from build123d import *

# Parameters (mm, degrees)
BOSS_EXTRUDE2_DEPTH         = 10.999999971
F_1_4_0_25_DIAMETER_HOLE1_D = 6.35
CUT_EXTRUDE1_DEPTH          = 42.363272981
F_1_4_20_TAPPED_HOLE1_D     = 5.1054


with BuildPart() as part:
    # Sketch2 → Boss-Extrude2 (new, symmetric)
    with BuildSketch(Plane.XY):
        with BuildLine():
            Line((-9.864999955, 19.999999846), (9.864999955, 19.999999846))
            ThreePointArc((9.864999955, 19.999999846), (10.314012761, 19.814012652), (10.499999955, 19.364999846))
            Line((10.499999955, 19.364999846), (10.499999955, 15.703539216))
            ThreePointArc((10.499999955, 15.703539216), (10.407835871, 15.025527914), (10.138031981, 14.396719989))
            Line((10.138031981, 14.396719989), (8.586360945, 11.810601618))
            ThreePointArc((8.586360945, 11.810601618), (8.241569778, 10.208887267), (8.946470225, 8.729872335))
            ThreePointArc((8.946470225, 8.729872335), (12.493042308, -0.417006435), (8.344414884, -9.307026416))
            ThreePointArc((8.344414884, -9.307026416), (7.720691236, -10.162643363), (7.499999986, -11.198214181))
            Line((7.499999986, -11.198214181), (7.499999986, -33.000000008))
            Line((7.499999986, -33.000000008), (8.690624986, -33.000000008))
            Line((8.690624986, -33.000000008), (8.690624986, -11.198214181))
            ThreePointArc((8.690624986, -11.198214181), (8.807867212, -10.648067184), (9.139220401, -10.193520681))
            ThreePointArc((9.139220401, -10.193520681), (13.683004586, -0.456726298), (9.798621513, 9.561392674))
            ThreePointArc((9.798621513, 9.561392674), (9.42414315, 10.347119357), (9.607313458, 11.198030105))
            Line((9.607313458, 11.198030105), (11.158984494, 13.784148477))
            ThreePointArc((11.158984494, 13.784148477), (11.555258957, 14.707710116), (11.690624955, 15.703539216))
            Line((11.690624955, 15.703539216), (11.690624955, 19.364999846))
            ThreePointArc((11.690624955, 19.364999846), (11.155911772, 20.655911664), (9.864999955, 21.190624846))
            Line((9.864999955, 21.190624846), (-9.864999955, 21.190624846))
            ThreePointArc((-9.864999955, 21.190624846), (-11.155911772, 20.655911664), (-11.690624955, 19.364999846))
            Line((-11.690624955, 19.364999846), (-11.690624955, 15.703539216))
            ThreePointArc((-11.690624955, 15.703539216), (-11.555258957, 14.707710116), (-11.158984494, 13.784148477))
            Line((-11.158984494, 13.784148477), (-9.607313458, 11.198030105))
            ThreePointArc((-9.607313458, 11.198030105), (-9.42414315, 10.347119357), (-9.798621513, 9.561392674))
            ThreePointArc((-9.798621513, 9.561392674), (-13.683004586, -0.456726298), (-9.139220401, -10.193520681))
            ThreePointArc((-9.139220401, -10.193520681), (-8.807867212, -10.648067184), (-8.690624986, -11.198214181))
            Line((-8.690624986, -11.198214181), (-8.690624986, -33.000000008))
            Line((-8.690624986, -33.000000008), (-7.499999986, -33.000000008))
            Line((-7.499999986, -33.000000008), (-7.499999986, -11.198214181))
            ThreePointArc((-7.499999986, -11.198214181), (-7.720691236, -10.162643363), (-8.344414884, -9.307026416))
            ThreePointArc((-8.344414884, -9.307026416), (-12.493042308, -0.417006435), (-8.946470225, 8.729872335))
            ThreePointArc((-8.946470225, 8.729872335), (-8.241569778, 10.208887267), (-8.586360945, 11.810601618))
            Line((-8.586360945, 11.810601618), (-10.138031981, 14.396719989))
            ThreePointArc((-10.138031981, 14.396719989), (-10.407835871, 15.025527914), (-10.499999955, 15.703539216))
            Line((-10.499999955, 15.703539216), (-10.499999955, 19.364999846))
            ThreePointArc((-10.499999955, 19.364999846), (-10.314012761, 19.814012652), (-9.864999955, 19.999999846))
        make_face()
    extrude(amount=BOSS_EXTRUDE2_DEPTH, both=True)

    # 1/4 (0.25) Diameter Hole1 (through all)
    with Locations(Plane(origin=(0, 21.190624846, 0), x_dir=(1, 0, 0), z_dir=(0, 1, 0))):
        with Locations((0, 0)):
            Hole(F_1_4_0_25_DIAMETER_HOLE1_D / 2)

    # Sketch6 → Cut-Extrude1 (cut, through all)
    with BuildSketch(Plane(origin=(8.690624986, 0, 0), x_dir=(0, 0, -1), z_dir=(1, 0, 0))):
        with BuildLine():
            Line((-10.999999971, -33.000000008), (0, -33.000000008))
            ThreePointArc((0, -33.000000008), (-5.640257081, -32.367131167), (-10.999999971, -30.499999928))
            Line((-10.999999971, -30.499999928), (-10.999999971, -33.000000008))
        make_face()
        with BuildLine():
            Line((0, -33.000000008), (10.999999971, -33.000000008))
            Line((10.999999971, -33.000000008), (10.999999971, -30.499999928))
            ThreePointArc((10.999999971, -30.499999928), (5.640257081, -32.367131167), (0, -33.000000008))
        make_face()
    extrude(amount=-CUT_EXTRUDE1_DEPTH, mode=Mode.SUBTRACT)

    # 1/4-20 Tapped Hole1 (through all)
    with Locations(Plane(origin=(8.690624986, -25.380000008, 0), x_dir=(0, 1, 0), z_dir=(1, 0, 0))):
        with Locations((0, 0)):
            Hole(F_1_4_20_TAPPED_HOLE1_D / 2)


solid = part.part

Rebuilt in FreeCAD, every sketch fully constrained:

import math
import FreeCAD as App
import Part
import Sketcher

V = App.Vector
Q = App.Units.Quantity

doc = App.newDocument("Part")
body = doc.addObject("PartDesign::Body", "Body")

# Sketch on XY plane
sketch1 = doc.addObject("Sketcher::SketchObject", "Sketch")
body.addObject(sketch1)
sketch1.AttachmentSupport = (doc.XY_Plane, [""])
sketch1.MapMode = "FlatFace"
sketch1.addGeometry(Part.LineSegment(V(-9.9, 20, 0), V(9.9, 20, 0)), False)
sketch1.addGeometry(Part.ArcOfCircle(Part.Circle(V(9.9, 19.4, 0), V(0, 0, 1), 0.6), math.radians(0), math.radians(90)), False)
sketch1.addGeometry(Part.LineSegment(V(10.5, 19.4, 0), V(10.5, 15.7, 0)), False)
sketch1.addGeometry(Part.ArcOfCircle(Part.Circle(V(8, 15.7, 0), V(0, 0, 1), 2.5), math.radians(-31), math.radians(0)), False)
sketch1.addGeometry(Part.LineSegment(V(10.1, 14.4, 0), V(8.6, 11.8, 0)), False)
sketch1.addGeometry(Part.ArcOfCircle(Part.Circle(V(10.8, 10.5, 0), V(0, 0, 1), 2.5), math.radians(149), math.radians(224)), False)
sketch1.addGeometry(Part.ArcOfCircle(Part.Circle(V(0, 0, 0), V(0, 0, 1), 12.5), math.radians(-48), math.radians(44)), False)
sketch1.addGeometry(Part.ArcOfCircle(Part.Circle(V(10, -11.2, 0), V(0, 0, 1), 2.5), math.radians(132), math.radians(180)), False)
sketch1.addGeometry(Part.LineSegment(V(7.5, -11.2, 0), V(7.5, -33, 0)), False)
sketch1.addGeometry(Part.LineSegment(V(7.5, -33, 0), V(8.7, -33, 0)), False)
sketch1.addGeometry(Part.LineSegment(V(8.7, -33, 0), V(8.7, -11.2, 0)), False)
sketch1.addGeometry(Part.ArcOfCircle(Part.Circle(V(10, -11.2, 0), V(0, 0, 1), 1.3), math.radians(132), math.radians(180)), False)
sketch1.addGeometry(Part.ArcOfCircle(Part.Circle(V(0, 0, 0), V(0, 0, 1), 13.7), math.radians(-48), math.radians(44)), False)
sketch1.addGeometry(Part.ArcOfCircle(Part.Circle(V(10.8, 10.5, 0), V(0, 0, 1), 1.3), math.radians(149), math.radians(224)), False)
sketch1.addGeometry(Part.LineSegment(V(9.6, 11.2, 0), V(11.2, 13.8, 0)), False)
sketch1.addGeometry(Part.ArcOfCircle(Part.Circle(V(8, 15.7, 0), V(0, 0, 1), 3.7), math.radians(-31), math.radians(0)), False)
sketch1.addGeometry(Part.LineSegment(V(11.7, 15.7, 0), V(11.7, 19.4, 0)), False)
sketch1.addGeometry(Part.ArcOfCircle(Part.Circle(V(9.9, 19.4, 0), V(0, 0, 1), 1.8), math.radians(0), math.radians(90)), False)
sketch1.addGeometry(Part.LineSegment(V(9.9, 21.2, 0), V(-9.9, 21.2, 0)), False)
sketch1.addGeometry(Part.ArcOfCircle(Part.Circle(V(-9.9, 19.4, 0), V(0, 0, 1), 1.8), math.radians(90), math.radians(180)), False)
sketch1.addGeometry(Part.LineSegment(V(-11.7, 19.4, 0), V(-11.7, 15.7, 0)), False)
sketch1.addGeometry(Part.ArcOfCircle(Part.Circle(V(-8, 15.7, 0), V(0, 0, 1), 3.7), math.radians(-180), math.radians(-149)), False)
sketch1.addGeometry(Part.LineSegment(V(-11.2, 13.8, 0), V(-9.6, 11.2, 0)), False)
sketch1.addGeometry(Part.ArcOfCircle(Part.Circle(V(-10.8, 10.5, 0), V(0, 0, 1), 1.3), math.radians(-44), math.radians(31)), False)
sketch1.addGeometry(Part.ArcOfCircle(Part.Circle(V(0, 0, 0), V(0, 0, 1), 13.7), math.radians(136), math.radians(228)), False)
sketch1.addGeometry(Part.ArcOfCircle(Part.Circle(V(-10, -11.2, 0), V(0, 0, 1), 1.3), math.radians(0), math.radians(48)), False)
sketch1.addGeometry(Part.LineSegment(V(-8.7, -11.2, 0), V(-8.7, -33, 0)), False)
sketch1.addGeometry(Part.LineSegment(V(-8.7, -33, 0), V(-7.5, -33, 0)), False)
sketch1.addGeometry(Part.LineSegment(V(-7.5, -33, 0), V(-7.5, -11.2, 0)), False)
sketch1.addGeometry(Part.ArcOfCircle(Part.Circle(V(-10, -11.2, 0), V(0, 0, 1), 2.5), math.radians(0), math.radians(48)), False)
sketch1.addGeometry(Part.ArcOfCircle(Part.Circle(V(0, 0, 0), V(0, 0, 1), 12.5), math.radians(136), math.radians(228)), False)
sketch1.addGeometry(Part.ArcOfCircle(Part.Circle(V(-10.8, 10.5, 0), V(0, 0, 1), 2.5), math.radians(-44), math.radians(31)), False)
sketch1.addGeometry(Part.LineSegment(V(-8.6, 11.8, 0), V(-10.1, 14.4, 0)), False)
sketch1.addGeometry(Part.ArcOfCircle(Part.Circle(V(-8, 15.7, 0), V(0, 0, 1), 2.5), math.radians(-180), math.radians(-149)), False)
sketch1.addGeometry(Part.LineSegment(V(-10.5, 15.7, 0), V(-10.5, 19.4, 0)), False)
sketch1.addGeometry(Part.ArcOfCircle(Part.Circle(V(-9.9, 19.4, 0), V(0, 0, 1), 0.6), math.radians(90), math.radians(180)), False)
sketch1.addConstraint(Sketcher.Constraint("Tangent", 0, 2, 1, 2))
sketch1.addConstraint(Sketcher.Constraint("Tangent", 1, 1, 2, 1))
sketch1.addConstraint(Sketcher.Constraint("Tangent", 2, 2, 3, 2))
sketch1.addConstraint(Sketcher.Constraint("Tangent", 3, 1, 4, 1))
sketch1.addConstraint(Sketcher.Constraint("Tangent", 4, 2, 5, 1))
sketch1.addConstraint(Sketcher.Constraint("Tangent", 5, 2, 6, 2))
sketch1.addConstraint(Sketcher.Constraint("Tangent", 6, 1, 7, 1))
sketch1.addConstraint(Sketcher.Constraint("Tangent", 7, 2, 8, 1))
sketch1.addConstraint(Sketcher.Constraint("Coincident", 8, 2, 9, 1))
sketch1.addConstraint(Sketcher.Constraint("Coincident", 9, 2, 10, 1))
sketch1.addConstraint(Sketcher.Constraint("Tangent", 10, 2, 11, 2))
sketch1.addConstraint(Sketcher.Constraint("Tangent", 11, 1, 12, 1))
sketch1.addConstraint(Sketcher.Constraint("Tangent", 12, 2, 13, 2))
sketch1.addConstraint(Sketcher.Constraint("Tangent", 13, 1, 14, 1))
sketch1.addConstraint(Sketcher.Constraint("Tangent", 14, 2, 15, 1))
sketch1.addConstraint(Sketcher.Constraint("Tangent", 15, 2, 16, 1))
sketch1.addConstraint(Sketcher.Constraint("Tangent", 16, 2, 17, 1))
sketch1.addConstraint(Sketcher.Constraint("Tangent", 17, 2, 18, 1))
sketch1.addConstraint(Sketcher.Constraint("Tangent", 18, 2, 19, 1))
sketch1.addConstraint(Sketcher.Constraint("Tangent", 19, 2, 20, 1))
sketch1.addConstraint(Sketcher.Constraint("Tangent", 20, 2, 21, 1))
sketch1.addConstraint(Sketcher.Constraint("Tangent", 21, 2, 22, 1))
sketch1.addConstraint(Sketcher.Constraint("Tangent", 22, 2, 23, 2))
sketch1.addConstraint(Sketcher.Constraint("Tangent", 23, 1, 24, 1))
sketch1.addConstraint(Sketcher.Constraint("Tangent", 24, 2, 25, 2))
sketch1.addConstraint(Sketcher.Constraint("Tangent", 25, 1, 26, 1))
sketch1.addConstraint(Sketcher.Constraint("Coincident", 26, 2, 27, 1))
sketch1.addConstraint(Sketcher.Constraint("Coincident", 27, 2, 28, 1))
sketch1.addConstraint(Sketcher.Constraint("Tangent", 28, 2, 29, 1))
sketch1.addConstraint(Sketcher.Constraint("Tangent", 29, 2, 30, 2))
sketch1.addConstraint(Sketcher.Constraint("Tangent", 30, 1, 31, 1))
sketch1.addConstraint(Sketcher.Constraint("Tangent", 31, 2, 32, 1))
sketch1.addConstraint(Sketcher.Constraint("Tangent", 32, 2, 33, 2))
sketch1.addConstraint(Sketcher.Constraint("Tangent", 33, 1, 34, 1))
sketch1.addConstraint(Sketcher.Constraint("Tangent", 34, 2, 35, 2))
sketch1.addConstraint(Sketcher.Constraint("Tangent", 35, 1, 0, 1))
sketch1.addConstraint(Sketcher.Constraint("Horizontal", 0))
sketch1.addConstraint(Sketcher.Constraint("Vertical", 2))
sketch1.addConstraint(Sketcher.Constraint("Vertical", 8))
sketch1.addConstraint(Sketcher.Constraint("Horizontal", 9))
sketch1.addConstraint(Sketcher.Constraint("Vertical", 10))
sketch1.addConstraint(Sketcher.Constraint("Vertical", 16))
sketch1.addConstraint(Sketcher.Constraint("Horizontal", 18))
sketch1.addConstraint(Sketcher.Constraint("Vertical", 20))
sketch1.addConstraint(Sketcher.Constraint("Vertical", 26))
sketch1.addConstraint(Sketcher.Constraint("Horizontal", 27))
sketch1.addConstraint(Sketcher.Constraint("Vertical", 28))
sketch1.addConstraint(Sketcher.Constraint("Vertical", 34))
sketch1.addConstraint(Sketcher.Constraint("Coincident", 6, 3, -1, 1))
sketch1.addConstraint(Sketcher.Constraint("Coincident", 12, 3, -1, 1))
sketch1.addConstraint(Sketcher.Constraint("Coincident", 24, 3, -1, 1))
sketch1.addConstraint(Sketcher.Constraint("Coincident", 30, 3, -1, 1))
sketch1.addConstraint(Sketcher.Constraint("Coincident", 11, 3, 7, 3))
sketch1.addConstraint(Sketcher.Constraint("Coincident", 13, 3, 5, 3))
sketch1.addConstraint(Sketcher.Constraint("Coincident", 15, 3, 3, 3))
sketch1.addConstraint(Sketcher.Constraint("Coincident", 17, 3, 1, 3))
sketch1.addConstraint(Sketcher.Constraint("Coincident", 29, 3, 25, 3))
sketch1.addConstraint(Sketcher.Constraint("Coincident", 31, 3, 23, 3))
sketch1.addConstraint(Sketcher.Constraint("Coincident", 33, 3, 21, 3))
sketch1.addConstraint(Sketcher.Constraint("Coincident", 35, 3, 19, 3))
sketch1.addConstraint(Sketcher.Constraint("Equal", 3, 5))
sketch1.addConstraint(Sketcher.Constraint("Equal", 5, 7))
sketch1.addConstraint(Sketcher.Constraint("Equal", 17, 19))
sketch1.addConstraint(Sketcher.Constraint("Equal", 15, 21))
sketch1.addConstraint(Sketcher.Constraint("Equal", 13, 23))
sketch1.addConstraint(Sketcher.Constraint("Equal", 12, 24))
sketch1.addConstraint(Sketcher.Constraint("Equal", 23, 25))
sketch1.addConstraint(Sketcher.Constraint("Equal", 7, 29))
sketch1.addConstraint(Sketcher.Constraint("Symmetric", 3, 3, 21, 3, -2))
sketch1.addConstraint(Sketcher.Constraint("Symmetric", 9, 2, 26, 2, -2))
sketch1.addConstraint(Sketcher.Constraint("Parallel", 4, 14))
sketch1.addConstraint(Sketcher.Constraint("Horizontal", 13, 3, 23, 3))
sketch1.addConstraint(Sketcher.Constraint("Radius", 3, Q("0.1 in")))
sketch1.addConstraint(Sketcher.Constraint("Radius", 1, Q("0.025 in")))
sketch1.addConstraint(Sketcher.Constraint("DistanceX", 9, 1, 9, 2, Q("0.046875 in")))
sketch1.addConstraint(Sketcher.Constraint("Radius", 6, 12.5))
sketch1.addConstraint(Sketcher.Constraint("DistanceX", 0, 1, 0, 2, 19.73))
sketch1.addConstraint(Sketcher.Constraint("DistanceY", -1, 1, 3, 1, Q("0.5668 in")))
sketch1.addConstraint(Sketcher.Constraint("DistanceY", 2, 2, 2, 1, 3.661461))
sketch1.addConstraint(Sketcher.Constraint("DistanceY", -1, 1, 1, 3, 19.365))
sketch1.addConstraint(Sketcher.Constraint("DistanceX", -1, 1, 7, 3, 10.04))
sketch1.addConstraint(Sketcher.Constraint("DistanceY", 8, 2, -1, 1, 33.0))
pad1 = doc.addObject("PartDesign::Pad", "Pad")
body.addObject(pad1)
pad1.Profile = sketch1
pad1.Length = 22
pad1.Midplane = True

# Sketch on XZ plane
sketch2 = doc.addObject("Sketcher::SketchObject", "Sketch001")
body.addObject(sketch2)
sketch2.AttachmentSupport = (doc.XZ_Plane, [""])
sketch2.MapMode = "FlatFace"
sketch2.AttachmentOffset = App.Placement(V(0, 0, -21.190625), App.Rotation())
sketch2.addGeometry(Part.Circle(V(0, 0, 0), V(0, 0, 1), 3.2), False)
sketch2.addConstraint(Sketcher.Constraint("Coincident", 0, 3, -1, 1))
sketch2.addConstraint(Sketcher.Constraint("Diameter", 0, Q("0.25 in")))
doc.recompute()
hole = doc.addObject("PartDesign::Hole", "Hole")
body.addObject(hole)
hole.Profile = sketch2
hole.ThreadType = "None"
hole.Diameter = Q("0.25 in")
hole.DepthType = "ThroughAll"
hole.Reversed = True

# Sketch on YZ plane
sketch3 = doc.addObject("Sketcher::SketchObject", "Sketch002")
body.addObject(sketch3)
sketch3.AttachmentSupport = (doc.YZ_Plane, [""])
sketch3.MapMode = "FlatFace"
sketch3.AttachmentOffset = App.Placement(V(0, 0, 8.690625), App.Rotation())
sketch3.addGeometry(Part.LineSegment(V(-33, 11, 0), V(-33, 0, 0)), False)
sketch3.addGeometry(Part.ArcOfCircle(Part.Circle(V(-7.6, 0, 0), V(0, 0, 1), 25.4), math.radians(154), math.radians(180)), False)
sketch3.addGeometry(Part.LineSegment(V(-30.5, 11, 0), V(-33, 11, 0)), False)
sketch3.addGeometry(Part.LineSegment(V(-33, 0, 0), V(-33, -11, 0)), False)
sketch3.addGeometry(Part.LineSegment(V(-33, -11, 0), V(-30.5, -11, 0)), False)
sketch3.addGeometry(Part.ArcOfCircle(Part.Circle(V(-7.6, 0, 0), V(0, 0, 1), 25.4), math.radians(-180), math.radians(-154)), False)
sketch3.addConstraint(Sketcher.Constraint("Tangent", 0, 2, 1, 2))
sketch3.addConstraint(Sketcher.Constraint("Coincident", 1, 1, 2, 1))
sketch3.addConstraint(Sketcher.Constraint("Coincident", 2, 2, 0, 1))
sketch3.addConstraint(Sketcher.Constraint("Coincident", 3, 2, 4, 1))
sketch3.addConstraint(Sketcher.Constraint("Coincident", 4, 2, 5, 2))
sketch3.addConstraint(Sketcher.Constraint("Tangent", 5, 1, 3, 1))
sketch3.addConstraint(Sketcher.Constraint("Vertical", 0))
sketch3.addConstraint(Sketcher.Constraint("Horizontal", 2))
sketch3.addConstraint(Sketcher.Constraint("Vertical", 3))
sketch3.addConstraint(Sketcher.Constraint("Horizontal", 4))
sketch3.addConstraint(Sketcher.Constraint("Coincident", 5, 3, 1, 3))
sketch3.addConstraint(Sketcher.Constraint("Equal", 1, 5))
sketch3.addConstraint(Sketcher.Constraint("Symmetric", 1, 1, 4, 2, -1))
sketch3.addConstraint(Sketcher.Constraint("Radius", 1, 25.449999))
sketch3.addConstraint(Sketcher.Constraint("DistanceX", 2, 2, 2, 1, 2.5))
sketch3.addConstraint(Sketcher.Constraint("DistanceX", 1, 3, -1, 1, 7.550001))
pocket1 = doc.addObject("PartDesign::Pocket", "Pocket")
body.addObject(pocket1)
pocket1.Profile = sketch3
pocket1.Type = "ThroughAll"

# Sketch on YZ plane
sketch4 = doc.addObject("Sketcher::SketchObject", "Sketch003")
body.addObject(sketch4)
sketch4.AttachmentSupport = (doc.YZ_Plane, [""])
sketch4.MapMode = "FlatFace"
sketch4.AttachmentOffset = App.Placement(V(0, 0, 8.690625), App.Rotation())
sketch4.addGeometry(Part.Circle(V(-25.4, 0, 0), V(0, 0, 1), 2.6), False)
sketch4.addConstraint(Sketcher.Constraint("PointOnObject", 0, 3, -1))
sketch4.addConstraint(Sketcher.Constraint("Diameter", 0, Q("0.201 in")))
sketch4.addConstraint(Sketcher.Constraint("DistanceX", 0, 3, -1, 1, 25.38))
doc.recompute()
hole2 = doc.addObject("PartDesign::Hole", "Hole001")
body.addObject(hole2)
hole2.Profile = sketch4
hole2.ThreadType = "None"
hole2.Diameter = Q("0.201 in")
hole2.DepthType = "ThroughAll"

doc.recompute()
